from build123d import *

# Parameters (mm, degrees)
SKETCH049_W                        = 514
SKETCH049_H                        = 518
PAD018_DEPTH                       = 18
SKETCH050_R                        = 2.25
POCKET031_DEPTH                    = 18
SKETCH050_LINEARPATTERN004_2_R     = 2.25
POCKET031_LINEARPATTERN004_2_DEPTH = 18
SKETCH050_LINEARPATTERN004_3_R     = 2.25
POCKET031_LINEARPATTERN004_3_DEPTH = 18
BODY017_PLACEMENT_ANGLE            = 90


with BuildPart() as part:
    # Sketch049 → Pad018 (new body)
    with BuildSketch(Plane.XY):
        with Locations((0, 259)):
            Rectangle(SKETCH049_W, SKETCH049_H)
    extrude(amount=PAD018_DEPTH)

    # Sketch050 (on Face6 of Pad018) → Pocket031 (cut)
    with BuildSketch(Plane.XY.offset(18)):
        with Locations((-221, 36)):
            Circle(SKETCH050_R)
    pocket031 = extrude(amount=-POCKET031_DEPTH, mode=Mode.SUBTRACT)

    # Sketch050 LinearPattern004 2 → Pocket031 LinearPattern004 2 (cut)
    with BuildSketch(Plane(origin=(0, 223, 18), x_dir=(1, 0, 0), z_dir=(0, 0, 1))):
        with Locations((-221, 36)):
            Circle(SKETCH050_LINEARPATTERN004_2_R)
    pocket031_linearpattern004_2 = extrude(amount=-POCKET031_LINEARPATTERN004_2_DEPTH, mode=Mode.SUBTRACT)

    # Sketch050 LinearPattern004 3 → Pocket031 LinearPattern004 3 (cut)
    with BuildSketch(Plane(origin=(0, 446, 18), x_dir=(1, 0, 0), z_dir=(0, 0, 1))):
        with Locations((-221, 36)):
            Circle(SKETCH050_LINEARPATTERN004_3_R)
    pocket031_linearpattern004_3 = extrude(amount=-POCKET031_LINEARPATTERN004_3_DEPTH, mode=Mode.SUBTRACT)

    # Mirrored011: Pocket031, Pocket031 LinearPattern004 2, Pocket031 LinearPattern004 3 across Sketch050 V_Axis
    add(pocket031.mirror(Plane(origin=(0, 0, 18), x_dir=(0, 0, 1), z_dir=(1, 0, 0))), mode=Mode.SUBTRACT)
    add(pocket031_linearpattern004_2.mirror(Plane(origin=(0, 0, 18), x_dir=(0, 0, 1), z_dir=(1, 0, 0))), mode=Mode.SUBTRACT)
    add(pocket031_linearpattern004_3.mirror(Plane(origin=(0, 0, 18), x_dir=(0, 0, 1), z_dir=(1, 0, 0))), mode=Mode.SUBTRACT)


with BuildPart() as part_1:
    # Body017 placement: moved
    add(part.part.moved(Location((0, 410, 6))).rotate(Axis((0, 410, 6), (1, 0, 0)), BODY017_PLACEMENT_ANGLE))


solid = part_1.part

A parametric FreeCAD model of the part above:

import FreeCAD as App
import Part
import Sketcher

V = App.Vector


def add_polygon(sketch, points):
    """Adds a closed chain of lines whose ends are joined by coincident constraints."""
    first, n = sketch.GeometryCount, len(points)
    for a, b in zip(points, points[1:] + points[:1]):
        sketch.addGeometry(Part.LineSegment(App.Vector(*a, 0), App.Vector(*b, 0)), False)
    for i in range(n):
        sketch.addConstraint(Sketcher.Constraint("Coincident", first + i, 2, first + (i + 1) % n, 1))

doc = App.newDocument("Part")
body = doc.addObject("PartDesign::Body", "Body")

# Sketch on XY plane
sketch1 = body.newObject("Sketcher::SketchObject", "Sketch")
sketch1.AttachmentSupport = (doc.getObject("XY_Plane"), [""])
sketch1.MapMode = "FlatFace"
add_polygon(sketch1, [(-257, 518), (-257, 0), (257, 0), (257, 518)])  # lines 0-3
sketch1.addConstraint([
    Sketcher.Constraint("Vertical", 0),
    Sketcher.Constraint("Horizontal", 1),
    Sketcher.Constraint("Vertical", 2),
    Sketcher.Constraint("Horizontal", 3),
    Sketcher.Constraint("Symmetric", 0, 2, 1, 2, -1, 1),
    Sketcher.Constraint("DistanceX", 1, 1, 1, 2, 514.0),
    Sketcher.Constraint("DistanceY", 0, 2, 0, 1, 518.0),
])
pad1 = body.newObject("PartDesign::Pad", "Pad")
pad1.Profile = sketch1
pad1.Length = 18

# Sketch on XY plane
sketch2 = body.newObject("Sketcher::SketchObject", "Sketch001")
sketch2.AttachmentSupport = (doc.getObject("XY_Plane"), [""])
sketch2.MapMode = "FlatFace"
sketch2.AttachmentOffset = App.Placement(V(0, 0, 18), App.Rotation())
sketch2.addGeometry(Part.Circle(V(-221, 36, 0), V(0, 0, 1), 2.2), False)
sketch2.addConstraint([
    Sketcher.Constraint("Diameter", 0, 4.5),
    Sketcher.Constraint("DistanceX", 0, 3, -1, 1, 221.0),
    Sketcher.Constraint("DistanceY", -1, 1, 0, 3, 36.0),
])
pocket1 = body.newObject("PartDesign::Pocket", "Pocket")
pocket1.Profile = sketch2
pocket1.Length = 18

# Sketch on XY plane
sketch3 = body.newObject("Sketcher::SketchObject", "Sketch002")
sketch3.AttachmentSupport = (doc.getObject("XY_Plane"), [""])
sketch3.MapMode = "FlatFace"
sketch3.AttachmentOffset = App.Placement(V(0, 0, 18), App.Rotation())
sketch3.addGeometry(Part.Circle(V(-221, 259, 0), V(0, 0, 1), 2.2), False)
sketch3.addConstraint([
    Sketcher.Constraint("Diameter", 0, 4.5),
    Sketcher.Constraint("DistanceX", 0, 3, -1, 1, 221.0),
    Sketcher.Constraint("DistanceY", -1, 1, 0, 3, 259.0),
])
pocket2 = body.newObject("PartDesign::Pocket", "Pocket001")
pocket2.Profile = sketch3
pocket2.Length = 18

# Sketch on XY plane
sketch4 = body.newObject("Sketcher::SketchObject", "Sketch003")
sketch4.AttachmentSupport = (doc.getObject("XY_Plane"), [""])
sketch4.MapMode = "FlatFace"
sketch4.AttachmentOffset = App.Placement(V(0, 0, 18), App.Rotation())
sketch4.addGeometry(Part.Circle(V(-221, 482, 0), V(0, 0, 1), 2.2), False)
sketch4.addConstraint([
    Sketcher.Constraint("Diameter", 0, 4.5),
    Sketcher.Constraint("DistanceX", 0, 3, -1, 1, 221.0),
    Sketcher.Constraint("DistanceY", -1, 1, 0, 3, 482.0),
])
pocket3 = body.newObject("PartDesign::Pocket", "Pocket002")
pocket3.Profile = sketch4
pocket3.Length = 18
doc.recompute()

mirrored = body.newObject("PartDesign::Mirrored", "Mirrored")
mirrored.Originals = [pocket1, pocket2, pocket3]
mirrored.MirrorPlane = (doc.getObject("YZ_Plane"), [""])
body.Tip = mirrored
body2 = doc.addObject("PartDesign::Body", "Body001")
doc.recompute()

body.Placement = App.Placement(V(0, 410, 6), App.Rotation(V(1, 0, 0), 90))
boolean = body2.newObject("PartDesign::Boolean", "Boolean")
boolean.Type = "Fuse"
boolean.addObjects([body])

doc.recompute()
